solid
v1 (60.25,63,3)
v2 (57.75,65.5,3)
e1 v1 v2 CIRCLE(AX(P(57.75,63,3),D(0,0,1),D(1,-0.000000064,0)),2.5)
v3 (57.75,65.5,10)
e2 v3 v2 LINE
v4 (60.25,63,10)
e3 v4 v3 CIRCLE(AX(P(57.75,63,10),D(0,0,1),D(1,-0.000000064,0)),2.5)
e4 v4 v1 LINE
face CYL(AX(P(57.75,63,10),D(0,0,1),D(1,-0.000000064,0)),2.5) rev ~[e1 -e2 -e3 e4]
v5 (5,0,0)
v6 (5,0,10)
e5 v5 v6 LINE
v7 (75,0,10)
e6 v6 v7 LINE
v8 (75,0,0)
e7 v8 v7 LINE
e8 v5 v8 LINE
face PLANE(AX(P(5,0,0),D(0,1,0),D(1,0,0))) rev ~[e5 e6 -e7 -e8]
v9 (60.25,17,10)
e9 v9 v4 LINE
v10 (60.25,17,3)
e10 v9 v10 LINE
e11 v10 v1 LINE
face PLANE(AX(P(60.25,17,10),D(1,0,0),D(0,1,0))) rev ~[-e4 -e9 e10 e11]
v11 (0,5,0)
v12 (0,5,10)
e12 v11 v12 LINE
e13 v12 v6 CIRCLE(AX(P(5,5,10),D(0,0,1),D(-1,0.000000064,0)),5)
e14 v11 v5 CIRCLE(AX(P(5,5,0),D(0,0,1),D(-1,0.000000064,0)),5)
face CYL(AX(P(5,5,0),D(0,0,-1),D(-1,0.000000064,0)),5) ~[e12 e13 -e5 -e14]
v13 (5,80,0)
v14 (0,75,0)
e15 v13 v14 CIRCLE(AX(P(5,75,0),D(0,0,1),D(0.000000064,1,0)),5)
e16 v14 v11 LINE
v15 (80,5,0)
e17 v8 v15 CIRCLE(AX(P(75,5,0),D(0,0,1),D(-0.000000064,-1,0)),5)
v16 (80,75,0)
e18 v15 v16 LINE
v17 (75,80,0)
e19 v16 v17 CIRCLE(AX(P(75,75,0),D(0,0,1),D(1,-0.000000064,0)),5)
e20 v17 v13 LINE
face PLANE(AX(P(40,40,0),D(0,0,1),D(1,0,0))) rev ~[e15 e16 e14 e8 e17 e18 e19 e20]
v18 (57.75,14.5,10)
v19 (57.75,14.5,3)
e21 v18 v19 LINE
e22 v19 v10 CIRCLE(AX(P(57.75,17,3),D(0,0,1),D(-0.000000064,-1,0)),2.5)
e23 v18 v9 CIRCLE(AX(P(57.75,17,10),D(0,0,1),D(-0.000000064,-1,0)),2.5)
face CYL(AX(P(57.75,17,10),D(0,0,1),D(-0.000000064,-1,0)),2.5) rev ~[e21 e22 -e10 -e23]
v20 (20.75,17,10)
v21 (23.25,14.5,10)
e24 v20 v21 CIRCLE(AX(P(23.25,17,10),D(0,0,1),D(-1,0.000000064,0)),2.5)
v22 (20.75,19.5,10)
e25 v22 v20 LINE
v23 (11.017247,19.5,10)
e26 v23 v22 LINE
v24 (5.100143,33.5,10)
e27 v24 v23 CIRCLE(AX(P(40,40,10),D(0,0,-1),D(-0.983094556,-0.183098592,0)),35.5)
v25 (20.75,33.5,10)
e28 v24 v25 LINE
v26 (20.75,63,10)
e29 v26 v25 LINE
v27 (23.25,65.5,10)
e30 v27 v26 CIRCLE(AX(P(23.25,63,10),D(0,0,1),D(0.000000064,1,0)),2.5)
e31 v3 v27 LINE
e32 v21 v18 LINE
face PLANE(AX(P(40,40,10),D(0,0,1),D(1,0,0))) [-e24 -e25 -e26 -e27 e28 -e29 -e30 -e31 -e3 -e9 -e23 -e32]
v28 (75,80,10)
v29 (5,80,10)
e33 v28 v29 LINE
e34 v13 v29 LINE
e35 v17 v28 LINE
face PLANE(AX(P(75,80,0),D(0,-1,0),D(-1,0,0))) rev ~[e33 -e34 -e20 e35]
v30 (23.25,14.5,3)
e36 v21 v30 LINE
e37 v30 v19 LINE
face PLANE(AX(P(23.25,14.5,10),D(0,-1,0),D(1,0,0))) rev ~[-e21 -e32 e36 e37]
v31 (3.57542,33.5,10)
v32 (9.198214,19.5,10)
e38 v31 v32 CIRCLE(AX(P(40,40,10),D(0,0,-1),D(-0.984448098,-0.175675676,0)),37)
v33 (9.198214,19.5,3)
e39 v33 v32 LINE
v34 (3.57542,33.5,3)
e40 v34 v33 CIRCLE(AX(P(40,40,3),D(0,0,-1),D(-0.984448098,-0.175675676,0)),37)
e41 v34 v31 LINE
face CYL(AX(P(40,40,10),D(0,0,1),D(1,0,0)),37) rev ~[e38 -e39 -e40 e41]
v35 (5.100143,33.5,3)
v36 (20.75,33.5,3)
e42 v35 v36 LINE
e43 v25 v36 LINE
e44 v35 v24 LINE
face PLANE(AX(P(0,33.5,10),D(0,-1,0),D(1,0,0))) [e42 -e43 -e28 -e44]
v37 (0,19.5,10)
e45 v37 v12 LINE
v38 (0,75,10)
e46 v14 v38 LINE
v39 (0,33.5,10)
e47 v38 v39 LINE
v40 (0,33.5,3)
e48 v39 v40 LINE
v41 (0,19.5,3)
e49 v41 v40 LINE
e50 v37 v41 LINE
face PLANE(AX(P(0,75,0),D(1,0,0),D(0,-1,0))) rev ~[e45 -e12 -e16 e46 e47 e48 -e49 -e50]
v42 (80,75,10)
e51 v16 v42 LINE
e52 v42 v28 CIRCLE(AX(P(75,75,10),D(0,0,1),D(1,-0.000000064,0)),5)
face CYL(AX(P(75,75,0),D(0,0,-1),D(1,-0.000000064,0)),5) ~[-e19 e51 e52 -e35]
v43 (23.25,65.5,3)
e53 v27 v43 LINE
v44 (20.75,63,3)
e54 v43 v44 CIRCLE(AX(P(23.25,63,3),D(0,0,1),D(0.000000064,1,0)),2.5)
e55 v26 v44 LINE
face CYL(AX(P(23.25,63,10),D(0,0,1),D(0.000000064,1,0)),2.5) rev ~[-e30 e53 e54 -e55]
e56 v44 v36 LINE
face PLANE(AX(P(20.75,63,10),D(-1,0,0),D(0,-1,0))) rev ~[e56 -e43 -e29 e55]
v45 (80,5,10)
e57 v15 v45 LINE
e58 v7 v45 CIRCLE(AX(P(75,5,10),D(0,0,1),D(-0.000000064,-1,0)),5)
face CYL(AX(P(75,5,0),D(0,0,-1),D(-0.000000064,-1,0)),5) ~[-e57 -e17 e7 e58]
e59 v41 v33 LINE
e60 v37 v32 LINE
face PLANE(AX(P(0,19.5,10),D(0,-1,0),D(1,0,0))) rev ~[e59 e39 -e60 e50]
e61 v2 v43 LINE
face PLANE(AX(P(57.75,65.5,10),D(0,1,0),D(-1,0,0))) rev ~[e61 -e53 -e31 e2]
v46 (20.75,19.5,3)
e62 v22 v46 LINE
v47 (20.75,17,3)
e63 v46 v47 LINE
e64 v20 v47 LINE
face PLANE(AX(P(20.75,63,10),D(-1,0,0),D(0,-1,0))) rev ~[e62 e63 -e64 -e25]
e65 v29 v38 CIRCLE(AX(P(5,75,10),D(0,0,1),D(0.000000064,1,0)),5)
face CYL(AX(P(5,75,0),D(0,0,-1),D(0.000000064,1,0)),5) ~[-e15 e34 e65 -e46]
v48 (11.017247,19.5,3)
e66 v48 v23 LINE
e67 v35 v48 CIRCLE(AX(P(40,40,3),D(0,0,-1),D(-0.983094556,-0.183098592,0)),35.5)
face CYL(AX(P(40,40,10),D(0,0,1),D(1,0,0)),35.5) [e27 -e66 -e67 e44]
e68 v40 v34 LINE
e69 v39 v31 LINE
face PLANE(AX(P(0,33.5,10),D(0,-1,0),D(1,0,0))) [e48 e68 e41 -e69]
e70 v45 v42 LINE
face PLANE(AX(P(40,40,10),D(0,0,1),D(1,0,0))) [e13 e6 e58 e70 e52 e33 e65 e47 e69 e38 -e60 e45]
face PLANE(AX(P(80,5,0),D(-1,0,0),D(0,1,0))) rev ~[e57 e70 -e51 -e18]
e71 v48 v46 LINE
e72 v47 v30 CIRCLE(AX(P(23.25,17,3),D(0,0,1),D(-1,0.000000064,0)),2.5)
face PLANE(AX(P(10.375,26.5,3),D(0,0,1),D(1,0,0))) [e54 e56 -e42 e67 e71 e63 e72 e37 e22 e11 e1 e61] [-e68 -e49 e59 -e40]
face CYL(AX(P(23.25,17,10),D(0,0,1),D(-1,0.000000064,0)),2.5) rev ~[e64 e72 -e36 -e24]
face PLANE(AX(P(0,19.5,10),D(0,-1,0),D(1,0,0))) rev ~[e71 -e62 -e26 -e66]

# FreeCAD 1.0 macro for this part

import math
import FreeCAD as App
import Part
import Sketcher


def add_polygon(sketch, points):
    """Adds a closed chain of lines whose ends are joined by coincident constraints."""
    first, n = sketch.GeometryCount, len(points)
    for a, b in zip(points, points[1:] + points[:1]):
        sketch.addGeometry(Part.LineSegment(App.Vector(*a, 0), App.Vector(*b, 0)), False)
    for i in range(n):
        sketch.addConstraint(Sketcher.Constraint("Coincident", first + i, 2, first + (i + 1) % n, 1))

doc = App.newDocument("Part")
params = doc.addObject("Spreadsheet::Sheet", "Params")
for row, (alias, value) in enumerate([
    ("sketch1_radius", "5 mm"),
    ("sketch1_width", "70 mm"),
    ("pad1_length", "10 mm"),
    ("sketch2_radius", "2.5 mm"),
    ("sketch2_height", "46 mm"),
    ("sketch2_width", "34.5 mm"),
    ("pocket1_length", "7 mm"),
    ("sketch3_diameter", "74 mm"),
    ("sketch3_diameter2", "71 mm"),
    ("pocket2_length", "7 mm"),
    ("sketch4_height", "14 mm"),
    ("sketch4_width", "20.75 mm"),
    ("pocket3_length", "7 mm"),
], start=1):
    params.set(f"A{row}", alias)
    params.set(f"B{row}", "=" + value)
    params.setAlias(f"B{row}", alias)

body = doc.addObject("PartDesign::Body", "Body")

# Sketch on XY plane
sketch1 = body.newObject("Sketcher::SketchObject", "Sketch")
sketch1.AttachmentSupport = (doc.getObject("XY_Plane"), [""])
sketch1.MapMode = "FlatFace"
sketch1.addGeometry(Part.LineSegment(App.Vector(75, 80, 0), App.Vector(5, 80, 0)), False)
sketch1.addGeometry(Part.ArcOfCircle(Part.Circle(App.Vector(5, 75, 0), App.Vector(0, 0, 1), 5), math.radians(89.999996), math.radians(180.000004)), False)
sketch1.addGeometry(Part.LineSegment(App.Vector(0, 75, 0), App.Vector(0, 5, 0)), False)
sketch1.addGeometry(Part.ArcOfCircle(Part.Circle(App.Vector(5, 5, 0), App.Vector(0, 0, 1), 5), math.radians(179.999996), math.radians(270.000004)), False)
sketch1.addGeometry(Part.LineSegment(App.Vector(5, 0, 0), App.Vector(75, 0, 0)), False)
sketch1.addGeometry(Part.ArcOfCircle(Part.Circle(App.Vector(75, 5, 0), App.Vector(0, 0, 1), 5), math.radians(-90.000004), math.radians(0.000004)), False)
sketch1.addGeometry(Part.LineSegment(App.Vector(80, 5, 0), App.Vector(80, 75, 0)), False)
sketch1.addGeometry(Part.ArcOfCircle(Part.Circle(App.Vector(75, 75, 0), App.Vector(0, 0, 1), 5), math.radians(-0.000004), math.radians(90.000004)), False)
sketch1.addConstraint(Sketcher.Constraint("Tangent", 0, 2, 1, 1))
sketch1.addConstraint(Sketcher.Constraint("Tangent", 1, 2, 2, 1))
sketch1.addConstraint(Sketcher.Constraint("Tangent", 2, 2, 3, 1))
sketch1.addConstraint(Sketcher.Constraint("Tangent", 3, 2, 4, 1))
sketch1.addConstraint(Sketcher.Constraint("Tangent", 4, 2, 5, 1))
sketch1.addConstraint(Sketcher.Constraint("Tangent", 5, 2, 6, 1))
sketch1.addConstraint(Sketcher.Constraint("Tangent", 6, 2, 7, 1))
sketch1.addConstraint(Sketcher.Constraint("Tangent", 7, 2, 0, 1))
sketch1.addConstraint(Sketcher.Constraint("Horizontal", 0))
sketch1.addConstraint(Sketcher.Constraint("Vertical", 2))
sketch1.addConstraint(Sketcher.Constraint("Horizontal", 4))
sketch1.addConstraint(Sketcher.Constraint("Vertical", 6))
sketch1.addConstraint(Sketcher.Constraint("Equal", 1, 3))
sketch1.addConstraint(Sketcher.Constraint("Equal", 3, 5))
sketch1.addConstraint(Sketcher.Constraint("Equal", 5, 7))
sketch1.addConstraint(Sketcher.Constraint("PointOnObject", 1, 2, -2))
sketch1.addConstraint(Sketcher.Constraint("PointOnObject", 3, 2, -1))
sketch1.addConstraint(Sketcher.Constraint("Equal", 4, 2))
sketch1.addConstraint(Sketcher.Constraint("Radius", 1, 5.0))
sketch1.addConstraint(Sketcher.Constraint("DistanceX", 0, 2, 0, 1, 70.0))
sketch1.setExpression("Constraints[18]", "Params.sketch1_radius")
sketch1.setExpression("Constraints[19]", "Params.sketch1_width")
pad1 = body.newObject("PartDesign::Pad", "Pad")
pad1.Profile = sketch1
pad1.setExpression("Length", "Params.pad1_length")

# Sketch on XY plane
sketch2 = body.newObject("Sketcher::SketchObject", "Sketch001")
sketch2.AttachmentSupport = (doc.getObject("XY_Plane"), [""])
sketch2.MapMode = "FlatFace"
sketch2.AttachmentOffset = App.Placement(App.Vector(0, 0, 10), App.Rotation())
sketch2.addGeometry(Part.ArcOfCircle(Part.Circle(App.Vector(23.25, 17, 0), App.Vector(0, 0, 1), 2.5), math.radians(179.999996), math.radians(270.000004)), False)
sketch2.addGeometry(Part.LineSegment(App.Vector(23.25, 14.5, 0), App.Vector(57.75, 14.5, 0)), False)
sketch2.addGeometry(Part.ArcOfCircle(Part.Circle(App.Vector(57.75, 17, 0), App.Vector(0, 0, 1), 2.5), math.radians(-90.000004), math.radians(0.000004)), False)
sketch2.addGeometry(Part.LineSegment(App.Vector(60.25, 17, 0), App.Vector(60.25, 63, 0)), False)
sketch2.addGeometry(Part.ArcOfCircle(Part.Circle(App.Vector(57.75, 63, 0), App.Vector(0, 0, 1), 2.5), math.radians(-0.000004), math.radians(90.000004)), False)
sketch2.addGeometry(Part.LineSegment(App.Vector(57.75, 65.5, 0), App.Vector(23.25, 65.5, 0)), False)
sketch2.addGeometry(Part.ArcOfCircle(Part.Circle(App.Vector(23.25, 63, 0), App.Vector(0, 0, 1), 2.5), math.radians(89.999996), math.radians(180.000004)), False)
sketch2.addGeometry(Part.LineSegment(App.Vector(20.75, 63, 0), App.Vector(20.75, 17, 0)), False)
sketch2.addConstraint(Sketcher.Constraint("Tangent", 0, 2, 1, 1))
sketch2.addConstraint(Sketcher.Constraint("Tangent", 1, 2, 2, 1))
sketch2.addConstraint(Sketcher.Constraint("Tangent", 2, 2, 3, 1))
sketch2.addConstraint(Sketcher.Constraint("Tangent", 3, 2, 4, 1))
sketch2.addConstraint(Sketcher.Constraint("Tangent", 4, 2, 5, 1))
sketch2.addConstraint(Sketcher.Constraint("Tangent", 5, 2, 6, 1))
sketch2.addConstraint(Sketcher.Constraint("Tangent", 6, 2, 7, 1))
sketch2.addConstraint(Sketcher.Constraint("Tangent", 7, 2, 0, 1))
sketch2.addConstraint(Sketcher.Constraint("Horizontal", 1))
sketch2.addConstraint(Sketcher.Constraint("Vertical", 3))
sketch2.addConstraint(Sketcher.Constraint("Horizontal", 5))
sketch2.addConstraint(Sketcher.Constraint("Vertical", 7))
sketch2.addConstraint(Sketcher.Constraint("Equal", 0, 2))
sketch2.addConstraint(Sketcher.Constraint("Equal", 2, 4))
sketch2.addConstraint(Sketcher.Constraint("Equal", 4, 6))
sketch2.addConstraint(Sketcher.Constraint("Radius", 0, 2.5))
sketch2.addConstraint(Sketcher.Constraint("DistanceY", 3, 1, 3, 2, 46.0))
sketch2.addConstraint(Sketcher.Constraint("DistanceX", 1, 1, 1, 2, 34.5))
sketch2.addConstraint(Sketcher.Constraint("DistanceY", -1, 1, 0, 3, 17.0))
sketch2.addConstraint(Sketcher.Constraint("DistanceX", -1, 1, 0, 3, 23.25))
sketch2.setExpression("Constraints[15]", "Params.sketch2_radius")
sketch2.setExpression("Constraints[16]", "Params.sketch2_height")
sketch2.setExpression("Constraints[17]", "Params.sketch2_width")
pocket1 = body.newObject("PartDesign::Pocket", "Pocket")
pocket1.Profile = sketch2
pocket1.setExpression("Length", "Params.pocket1_length")

# Sketch on XY plane
sketch3 = body.newObject("Sketcher::SketchObject", "Sketch002")
sketch3.AttachmentSupport = (doc.getObject("XY_Plane"), [""])
sketch3.MapMode = "FlatFace"
sketch3.AttachmentOffset = App.Placement(App.Vector(0, 0, 10), App.Rotation())
sketch3.addGeometry(Part.Circle(App.Vector(40, 40, 0), App.Vector(0, 0, 1), 37), False)
sketch3.addGeometry(Part.Circle(App.Vector(40, 40, 0), App.Vector(0, 0, 1), 35.5), False)
sketch3.addConstraint(Sketcher.Constraint("Coincident", 1, 3, 0, 3))
sketch3.addConstraint(Sketcher.Constraint("Diameter", 0, 74.0))
sketch3.addConstraint(Sketcher.Constraint("Diameter", 1, 71.0))
sketch3.addConstraint(Sketcher.Constraint("DistanceX", -1, 1, 0, 3, 40.0))
sketch3.addConstraint(Sketcher.Constraint("DistanceY", -1, 1, 0, 3, 40.0))
sketch3.setExpression("Constraints[1]", "Params.sketch3_diameter")
sketch3.setExpression("Constraints[2]", "Params.sketch3_diameter2")
pocket2 = body.newObject("PartDesign::Pocket", "Pocket001")
pocket2.Profile = sketch3
pocket2.setExpression("Length", "Params.pocket2_length")

# Sketch on XY plane
sketch4 = body.newObject("Sketcher::SketchObject", "Sketch003")
sketch4.AttachmentSupport = (doc.getObject("XY_Plane"), [""])
sketch4.MapMode = "FlatFace"
sketch4.AttachmentOffset = App.Placement(App.Vector(0, 0, 10), App.Rotation())
add_polygon(sketch4, [(0, 33.5), (0, 19.5), (20.75, 19.5), (20.75, 33.5)])  # lines 0-3
sketch4.addConstraint(Sketcher.Constraint("Vertical", 0))
sketch4.addConstraint(Sketcher.Constraint("Horizontal", 1))
sketch4.addConstraint(Sketcher.Constraint("Vertical", 2))
sketch4.addConstraint(Sketcher.Constraint("Horizontal", 3))
sketch4.addConstraint(Sketcher.Constraint("PointOnObject", 0, 2, -2))
sketch4.addConstraint(Sketcher.Constraint("DistanceY", 0, 2, 0, 1, 14.0))
sketch4.addConstraint(Sketcher.Constraint("DistanceX", 1, 1, 1, 2, 20.75))
sketch4.addConstraint(Sketcher.Constraint("DistanceY", -1, 1, 0, 2, 19.5))
sketch4.setExpression("Constraints[9]", "Params.sketch4_height")
sketch4.setExpression("Constraints[10]", "Params.sketch4_width")
pocket3 = body.newObject("PartDesign::Pocket", "Pocket002")
pocket3.Profile = sketch4
pocket3.setExpression("Length", "Params.pocket3_length")

doc.recompute()
